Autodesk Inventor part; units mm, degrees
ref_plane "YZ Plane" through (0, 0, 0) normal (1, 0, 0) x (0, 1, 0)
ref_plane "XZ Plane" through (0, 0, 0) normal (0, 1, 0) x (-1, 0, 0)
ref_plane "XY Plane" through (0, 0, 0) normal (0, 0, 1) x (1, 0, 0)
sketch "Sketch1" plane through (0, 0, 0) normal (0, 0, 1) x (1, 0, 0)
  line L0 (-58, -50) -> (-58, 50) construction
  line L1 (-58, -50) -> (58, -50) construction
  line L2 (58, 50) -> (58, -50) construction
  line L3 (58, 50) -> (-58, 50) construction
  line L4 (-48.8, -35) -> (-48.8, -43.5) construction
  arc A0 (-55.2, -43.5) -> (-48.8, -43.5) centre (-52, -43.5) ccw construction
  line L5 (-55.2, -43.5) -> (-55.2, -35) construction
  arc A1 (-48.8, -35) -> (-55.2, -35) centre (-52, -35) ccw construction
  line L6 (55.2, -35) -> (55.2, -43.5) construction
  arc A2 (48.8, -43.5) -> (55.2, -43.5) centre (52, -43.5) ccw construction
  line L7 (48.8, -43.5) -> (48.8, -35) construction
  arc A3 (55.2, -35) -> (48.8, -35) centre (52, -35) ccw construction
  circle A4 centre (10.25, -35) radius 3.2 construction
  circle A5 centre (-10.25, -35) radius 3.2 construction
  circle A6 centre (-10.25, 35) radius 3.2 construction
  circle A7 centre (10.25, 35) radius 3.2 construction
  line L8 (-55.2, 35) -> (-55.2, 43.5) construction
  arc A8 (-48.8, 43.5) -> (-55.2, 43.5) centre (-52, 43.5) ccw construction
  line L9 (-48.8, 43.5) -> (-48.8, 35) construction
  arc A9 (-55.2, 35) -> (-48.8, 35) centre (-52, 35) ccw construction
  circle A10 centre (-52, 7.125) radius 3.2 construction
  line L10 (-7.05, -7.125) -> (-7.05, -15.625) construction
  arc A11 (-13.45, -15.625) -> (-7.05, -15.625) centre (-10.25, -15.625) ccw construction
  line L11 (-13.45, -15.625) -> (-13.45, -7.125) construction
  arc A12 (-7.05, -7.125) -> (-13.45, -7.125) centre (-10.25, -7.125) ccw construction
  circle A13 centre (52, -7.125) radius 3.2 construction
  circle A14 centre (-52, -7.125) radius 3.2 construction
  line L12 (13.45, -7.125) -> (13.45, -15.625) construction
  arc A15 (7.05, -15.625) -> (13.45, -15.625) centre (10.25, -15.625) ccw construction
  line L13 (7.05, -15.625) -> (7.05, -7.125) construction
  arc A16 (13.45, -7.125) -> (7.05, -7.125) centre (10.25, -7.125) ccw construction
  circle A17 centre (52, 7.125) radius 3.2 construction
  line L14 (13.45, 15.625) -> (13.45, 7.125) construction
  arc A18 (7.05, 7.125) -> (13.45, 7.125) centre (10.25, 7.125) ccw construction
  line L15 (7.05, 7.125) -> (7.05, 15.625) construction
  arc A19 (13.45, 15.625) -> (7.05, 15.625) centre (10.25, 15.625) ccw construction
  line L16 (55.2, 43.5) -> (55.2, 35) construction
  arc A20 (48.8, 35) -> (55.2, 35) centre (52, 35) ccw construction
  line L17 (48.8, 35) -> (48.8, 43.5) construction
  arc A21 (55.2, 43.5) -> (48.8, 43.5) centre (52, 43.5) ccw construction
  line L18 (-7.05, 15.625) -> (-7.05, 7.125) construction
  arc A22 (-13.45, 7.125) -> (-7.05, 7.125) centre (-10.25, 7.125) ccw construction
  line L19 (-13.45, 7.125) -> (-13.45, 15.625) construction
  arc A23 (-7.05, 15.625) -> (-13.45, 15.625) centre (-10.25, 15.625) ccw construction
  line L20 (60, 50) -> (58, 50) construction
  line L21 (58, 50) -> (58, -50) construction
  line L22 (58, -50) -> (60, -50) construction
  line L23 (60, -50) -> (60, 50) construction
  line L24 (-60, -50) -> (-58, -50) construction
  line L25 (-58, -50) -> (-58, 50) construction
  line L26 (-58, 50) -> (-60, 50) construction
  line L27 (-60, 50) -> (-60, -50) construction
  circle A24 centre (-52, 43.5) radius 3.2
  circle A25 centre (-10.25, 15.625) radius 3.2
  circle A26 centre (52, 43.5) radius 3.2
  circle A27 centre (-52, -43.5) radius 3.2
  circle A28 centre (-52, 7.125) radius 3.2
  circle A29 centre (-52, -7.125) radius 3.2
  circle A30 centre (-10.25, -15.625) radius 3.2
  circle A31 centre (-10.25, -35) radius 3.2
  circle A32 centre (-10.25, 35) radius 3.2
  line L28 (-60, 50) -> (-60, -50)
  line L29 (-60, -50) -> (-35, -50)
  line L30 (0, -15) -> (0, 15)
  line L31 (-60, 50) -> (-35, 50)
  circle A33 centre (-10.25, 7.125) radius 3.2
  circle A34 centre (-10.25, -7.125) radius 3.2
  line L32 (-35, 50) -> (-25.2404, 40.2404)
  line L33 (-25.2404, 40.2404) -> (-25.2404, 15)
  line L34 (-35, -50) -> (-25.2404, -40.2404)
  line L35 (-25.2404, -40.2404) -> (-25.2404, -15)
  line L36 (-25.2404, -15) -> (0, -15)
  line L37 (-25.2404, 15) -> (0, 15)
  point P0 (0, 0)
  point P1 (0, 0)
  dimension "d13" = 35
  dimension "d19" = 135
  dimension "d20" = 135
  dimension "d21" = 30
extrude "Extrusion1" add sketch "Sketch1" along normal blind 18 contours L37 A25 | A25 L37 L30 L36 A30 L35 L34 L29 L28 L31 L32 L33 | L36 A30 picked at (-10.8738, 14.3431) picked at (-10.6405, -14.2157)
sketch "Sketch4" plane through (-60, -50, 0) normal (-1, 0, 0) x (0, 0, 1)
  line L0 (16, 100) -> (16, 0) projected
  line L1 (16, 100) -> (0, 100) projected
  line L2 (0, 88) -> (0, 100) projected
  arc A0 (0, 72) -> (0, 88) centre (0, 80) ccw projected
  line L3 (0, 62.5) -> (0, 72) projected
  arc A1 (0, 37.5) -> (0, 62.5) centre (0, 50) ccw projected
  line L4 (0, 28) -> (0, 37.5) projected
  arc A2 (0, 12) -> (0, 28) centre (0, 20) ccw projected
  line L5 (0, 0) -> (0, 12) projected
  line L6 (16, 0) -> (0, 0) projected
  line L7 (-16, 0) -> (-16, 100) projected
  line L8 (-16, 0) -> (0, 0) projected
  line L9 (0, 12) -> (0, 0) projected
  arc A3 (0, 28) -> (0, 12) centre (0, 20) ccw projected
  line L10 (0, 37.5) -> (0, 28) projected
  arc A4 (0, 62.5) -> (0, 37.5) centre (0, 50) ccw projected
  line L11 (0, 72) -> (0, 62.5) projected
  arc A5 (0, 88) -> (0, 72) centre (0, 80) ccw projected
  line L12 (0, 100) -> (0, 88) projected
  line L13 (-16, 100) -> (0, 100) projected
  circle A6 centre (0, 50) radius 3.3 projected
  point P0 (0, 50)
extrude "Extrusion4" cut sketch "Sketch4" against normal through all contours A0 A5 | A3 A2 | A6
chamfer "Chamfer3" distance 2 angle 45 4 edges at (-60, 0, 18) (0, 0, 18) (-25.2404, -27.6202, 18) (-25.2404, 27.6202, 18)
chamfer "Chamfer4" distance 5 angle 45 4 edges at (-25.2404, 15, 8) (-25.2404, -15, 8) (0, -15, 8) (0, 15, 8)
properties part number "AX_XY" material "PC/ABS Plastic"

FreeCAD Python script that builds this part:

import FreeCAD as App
import Part
import Sketcher

V = App.Vector
Q = App.Units.Quantity


def edges_at(feature, points):
    """Names of the edges that pass closest to the given points."""
    edges = feature.Shape.Edges
    near = lambda p: min(range(len(edges)), key=lambda i: edges[i].distToShape(Part.Vertex(*p))[0])
    return sorted({f"Edge{near(p) + 1}" for p in points})

doc = App.newDocument("Part")
body = doc.addObject("PartDesign::Body", "Body")

sketch1 = body.newObject("Sketcher::SketchObject", "Sketch")
sketch1.AttachmentSupport = (doc.getObject("XY_Plane"), [""])
sketch1.MapMode = "FlatFace"
sketch1.addGeometry([
    Part.LineSegment(V(-25.2, 15, 0), V(-25.2, 40.2, 0)),
    Part.LineSegment(V(-25.2, 40.2, 0), V(-35, 50, 0)),
    Part.LineSegment(V(-35, 50, 0), V(-60, 50, 0)),
    Part.LineSegment(V(-60, 50, 0), V(-60, -50, 0)),
    Part.LineSegment(V(-60, -50, 0), V(-35, -50, 0)),
    Part.LineSegment(V(-35, -50, 0), V(-25.2, -40.2, 0)),
    Part.LineSegment(V(-25.2, -40.2, 0), V(-25.2, -15, 0)),
    Part.LineSegment(V(-25.2, -15, 0), V(0, -15, 0)),
    Part.LineSegment(V(0, -15, 0), V(0, 15, 0)),
    Part.LineSegment(V(0, 15, 0), V(-25.2, 15, 0)),
    Part.Circle(V(-52, 43.5, 0), V(0, 0, 1), 3.2),
    Part.Circle(V(-52, -43.5, 0), V(0, 0, 1), 3.2),
    Part.Circle(V(-52, -7.1, 0), V(0, 0, 1), 3.2),
    Part.Circle(V(-10.2, -7.1, 0), V(0, 0, 1), 3.2),
    Part.Circle(V(-52, 7.1, 0), V(0, 0, 1), 3.2),
    Part.Circle(V(-10.2, 7.1, 0), V(0, 0, 1), 3.2),
], False)
sketch1.addConstraint([
    Sketcher.Constraint("Coincident", 0, 2, 1, 1),
    Sketcher.Constraint("Coincident", 1, 2, 2, 1),
    Sketcher.Constraint("Coincident", 2, 2, 3, 1),
    Sketcher.Constraint("Coincident", 3, 2, 4, 1),
    Sketcher.Constraint("Coincident", 4, 2, 5, 1),
    Sketcher.Constraint("Coincident", 5, 2, 6, 1),
    Sketcher.Constraint("Coincident", 6, 2, 7, 1),
    Sketcher.Constraint("Coincident", 7, 2, 8, 1),
    Sketcher.Constraint("Coincident", 8, 2, 9, 1),
    Sketcher.Constraint("Coincident", 9, 2, 0, 1),
    Sketcher.Constraint("Vertical", 0),
    Sketcher.Constraint("Horizontal", 2),
    Sketcher.Constraint("Vertical", 3),
    Sketcher.Constraint("Horizontal", 4),
    Sketcher.Constraint("Vertical", 6),
    Sketcher.Constraint("Horizontal", 7),
    Sketcher.Constraint("Vertical", 8),
    Sketcher.Constraint("Horizontal", 9),
    Sketcher.Constraint("Equal", 10, 11),
    Sketcher.Constraint("Equal", 11, 12),
    Sketcher.Constraint("Equal", 12, 13),
    Sketcher.Constraint("Equal", 13, 14),
    Sketcher.Constraint("Equal", 14, 15),
    Sketcher.Constraint("Symmetric", 7, 2, 8, 2, -1, 1),
    Sketcher.Constraint("Symmetric", 10, 3, 11, 3, -1),
    Sketcher.Constraint("Symmetric", 12, 3, 14, 3, -1),
    Sketcher.Constraint("Symmetric", 13, 3, 15, 3, -1),
    Sketcher.Constraint("Symmetric", 1, 2, 4, 2, -1),
    Sketcher.Constraint("Symmetric", 0, 2, 5, 2, -1),
    Sketcher.Constraint("Perpendicular", 1, 5),
    Sketcher.Constraint("Horizontal", 12, 3, 13, 3),
    Sketcher.Constraint("Vertical", 11, 3, 12, 3),
    Sketcher.Constraint("Equal", 9, 0),
    Sketcher.Constraint("DistanceY", 8, 1, 8, 2, Q("30 mm")),
    Sketcher.Constraint("DistanceX", 1, 2, -1, 1, Q("35 mm")),
    Sketcher.Constraint("Diameter", 10, Q("6.4 mm")),
    Sketcher.Constraint("DistanceX", 2, 2, 2, 1, Q("25 mm")),
    Sketcher.Constraint("DistanceX", 10, 3, -1, 1, Q("52 mm")),
    Sketcher.Constraint("DistanceY", 11, 3, 10, 3, Q("87 mm")),
    Sketcher.Constraint("DistanceX", 13, 3, -1, 1, Q("10.25 mm")),
    Sketcher.Constraint("DistanceY", 12, 3, 14, 3, Q("14.25 mm")),
    Sketcher.Constraint("DistanceX", 7, 1, 7, 2, Q("25.2404 mm")),
])
pad1 = body.newObject("PartDesign::Pad", "Pad")
pad1.Profile = sketch1
pad1.Length = 18

sketch2 = body.newObject("Sketcher::SketchObject", "Sketch001")
sketch2.AttachmentSupport = (doc.getObject("YZ_Plane"), [""])
sketch2.MapMode = "FlatFace"
sketch2.AttachmentOffset = App.Placement(V(0, 0, -60), App.Rotation())
sketch2.addGeometry([
    Part.Circle(V(30, 0, 0), V(0, 0, 1), 8),
    Part.Circle(V(-30, 0, 0), V(0, 0, 1), 8),
    Part.Circle(V(0, 0, 0), V(0, 0, 1), 3.3),
], False)
sketch2.addConstraint([
    Sketcher.Constraint("Coincident", 2, 3, -1, 1),
    Sketcher.Constraint("Equal", 0, 1),
    Sketcher.Constraint("Symmetric", 0, 3, 1, 3, -1, 1),
    Sketcher.Constraint("PointOnObject", 0, 3, -1),
    Sketcher.Constraint("Diameter", 0, Q("16 mm")),
    Sketcher.Constraint("Diameter", 2, Q("6.6 mm")),
    Sketcher.Constraint("DistanceX", -1, 1, 0, 3, Q("30 mm")),
])
pocket1 = body.newObject("PartDesign::Pocket", "Pocket")
pocket1.Profile = sketch2
pocket1.Type = "ThroughAll"
pocket1.Reversed = True
doc.recompute()

chamfer = body.newObject("PartDesign::Chamfer", "Chamfer")
chamfer.Base = (pocket1, edges_at(pocket1, [
    (-60, 0, 18),
    (0, 0, 18),
    (-25.24, -27.62, 18),
    (-25.24, 27.62, 18),
]))
chamfer.Size = 2
doc.recompute()

chamfer2 = body.newObject("PartDesign::Chamfer", "Chamfer001")
chamfer2.Base = (chamfer, edges_at(chamfer, [
    (-25.24, 15, 8),
    (-25.24, -15, 8),
    (0, -15, 8),
    (0, 15, 8),
]))
chamfer2.Size = 5

doc.recompute()
